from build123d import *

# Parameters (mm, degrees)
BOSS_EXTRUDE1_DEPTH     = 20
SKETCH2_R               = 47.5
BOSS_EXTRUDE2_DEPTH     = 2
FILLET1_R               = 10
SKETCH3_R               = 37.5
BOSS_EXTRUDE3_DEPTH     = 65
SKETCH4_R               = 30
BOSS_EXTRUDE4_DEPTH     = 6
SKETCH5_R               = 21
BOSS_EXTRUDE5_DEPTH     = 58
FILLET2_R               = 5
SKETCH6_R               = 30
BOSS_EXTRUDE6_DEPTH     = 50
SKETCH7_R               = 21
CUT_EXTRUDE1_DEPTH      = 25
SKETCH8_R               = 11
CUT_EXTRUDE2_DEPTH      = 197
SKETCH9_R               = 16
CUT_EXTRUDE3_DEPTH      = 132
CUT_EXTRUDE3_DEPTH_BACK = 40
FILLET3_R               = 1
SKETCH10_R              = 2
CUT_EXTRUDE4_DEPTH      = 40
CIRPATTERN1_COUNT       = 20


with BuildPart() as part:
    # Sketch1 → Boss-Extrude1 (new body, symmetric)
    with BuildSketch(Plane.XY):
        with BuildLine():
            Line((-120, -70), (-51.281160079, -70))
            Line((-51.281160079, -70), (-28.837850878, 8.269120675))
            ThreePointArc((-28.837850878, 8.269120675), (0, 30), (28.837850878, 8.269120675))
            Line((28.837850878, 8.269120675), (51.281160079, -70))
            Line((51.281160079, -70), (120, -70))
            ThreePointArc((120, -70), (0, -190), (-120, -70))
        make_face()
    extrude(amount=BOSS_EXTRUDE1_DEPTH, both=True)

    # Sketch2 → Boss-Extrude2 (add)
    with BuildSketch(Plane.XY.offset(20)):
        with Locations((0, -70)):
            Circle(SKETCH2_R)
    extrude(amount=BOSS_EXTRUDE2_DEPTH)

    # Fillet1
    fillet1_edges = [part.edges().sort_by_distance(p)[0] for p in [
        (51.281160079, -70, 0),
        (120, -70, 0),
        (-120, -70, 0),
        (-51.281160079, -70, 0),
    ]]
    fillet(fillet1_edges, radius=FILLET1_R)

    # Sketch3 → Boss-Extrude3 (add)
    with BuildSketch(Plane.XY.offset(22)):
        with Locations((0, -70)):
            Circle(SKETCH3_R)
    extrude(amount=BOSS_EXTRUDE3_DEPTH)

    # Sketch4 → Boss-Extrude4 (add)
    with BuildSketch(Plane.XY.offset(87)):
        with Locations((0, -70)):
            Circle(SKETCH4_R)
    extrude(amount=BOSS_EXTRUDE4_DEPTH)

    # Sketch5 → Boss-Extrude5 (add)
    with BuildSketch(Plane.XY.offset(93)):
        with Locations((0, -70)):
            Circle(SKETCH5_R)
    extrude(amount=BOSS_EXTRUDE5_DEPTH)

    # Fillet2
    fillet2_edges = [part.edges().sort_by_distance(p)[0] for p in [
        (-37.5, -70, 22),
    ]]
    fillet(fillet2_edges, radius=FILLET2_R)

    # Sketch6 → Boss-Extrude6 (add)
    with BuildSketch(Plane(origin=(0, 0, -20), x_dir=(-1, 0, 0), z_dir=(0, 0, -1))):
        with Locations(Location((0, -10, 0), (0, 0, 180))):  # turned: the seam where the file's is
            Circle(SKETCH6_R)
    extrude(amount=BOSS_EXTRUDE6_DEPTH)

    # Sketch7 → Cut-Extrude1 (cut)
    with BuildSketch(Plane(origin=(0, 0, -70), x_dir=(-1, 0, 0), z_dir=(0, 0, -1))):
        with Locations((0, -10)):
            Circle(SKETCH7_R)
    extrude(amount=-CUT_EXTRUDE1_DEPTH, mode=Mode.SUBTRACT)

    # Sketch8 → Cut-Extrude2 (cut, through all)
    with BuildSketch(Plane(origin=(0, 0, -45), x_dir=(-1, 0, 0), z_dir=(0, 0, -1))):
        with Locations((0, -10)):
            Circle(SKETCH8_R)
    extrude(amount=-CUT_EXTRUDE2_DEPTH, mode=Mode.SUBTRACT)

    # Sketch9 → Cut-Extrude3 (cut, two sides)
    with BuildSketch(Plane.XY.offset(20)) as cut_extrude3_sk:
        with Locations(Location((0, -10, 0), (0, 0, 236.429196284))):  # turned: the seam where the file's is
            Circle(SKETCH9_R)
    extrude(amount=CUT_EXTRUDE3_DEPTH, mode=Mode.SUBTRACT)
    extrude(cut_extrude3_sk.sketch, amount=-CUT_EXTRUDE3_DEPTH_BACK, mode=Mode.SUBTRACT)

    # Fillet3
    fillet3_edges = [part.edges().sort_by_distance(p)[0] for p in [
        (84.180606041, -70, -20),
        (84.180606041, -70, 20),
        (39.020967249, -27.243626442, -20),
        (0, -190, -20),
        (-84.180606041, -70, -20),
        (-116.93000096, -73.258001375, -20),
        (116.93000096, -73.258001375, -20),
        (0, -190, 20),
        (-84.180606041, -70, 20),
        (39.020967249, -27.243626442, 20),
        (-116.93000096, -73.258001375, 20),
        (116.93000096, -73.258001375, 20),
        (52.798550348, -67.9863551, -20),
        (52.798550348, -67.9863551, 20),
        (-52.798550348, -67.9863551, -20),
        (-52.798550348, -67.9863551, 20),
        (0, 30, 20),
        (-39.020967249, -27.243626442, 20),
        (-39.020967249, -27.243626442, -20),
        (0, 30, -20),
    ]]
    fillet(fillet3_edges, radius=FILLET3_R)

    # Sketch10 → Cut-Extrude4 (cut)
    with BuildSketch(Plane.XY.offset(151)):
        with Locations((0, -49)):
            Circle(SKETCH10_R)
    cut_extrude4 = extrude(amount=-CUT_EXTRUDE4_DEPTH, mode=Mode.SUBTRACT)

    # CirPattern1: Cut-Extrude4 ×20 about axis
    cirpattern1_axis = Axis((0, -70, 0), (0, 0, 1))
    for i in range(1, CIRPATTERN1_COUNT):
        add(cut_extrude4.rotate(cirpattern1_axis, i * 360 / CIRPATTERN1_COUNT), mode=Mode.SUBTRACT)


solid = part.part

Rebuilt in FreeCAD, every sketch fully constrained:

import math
import FreeCAD as App
import Part
import Sketcher
from FreeCAD import Vector
Q = App.Units.Quantity


def edges_at(feature, points):
    """Names of the edges that pass closest to the given points."""
    edges = feature.Shape.Edges
    near = lambda p: min(range(len(edges)), key=lambda i: edges[i].distToShape(Part.Vertex(*p))[0])
    return sorted({f"Edge{near(p) + 1}" for p in points})

doc = App.newDocument("Part")
params = doc.addObject("Spreadsheet::Sheet", "Params")
for row, (alias, value) in enumerate([
    ("sketch1_radius", "120 mm"),
    ("sketch1_radius2", "30 mm"),
    ("pad1_length", "40 mm"),
    ("sketch2_diameter", "95 mm"),
    ("pad2_length", "2 mm"),
    ("fillet_radius", "10 mm"),
    ("sketch3_diameter", "75 mm"),
    ("pad3_length", "65 mm"),
    ("sketch4_diameter", "60 mm"),
    ("pad4_length", "6 mm"),
    ("sketch5_diameter", "42 mm"),
    ("pad5_length", "58 mm"),
    ("fillet2_radius", "5 mm"),
    ("sketch6_diameter", "60 mm"),
    ("pad6_length", "50 mm"),
    ("sketch7_diameter", "42 mm"),
    ("pocket1_length", "25 mm"),
    ("sketch8_diameter", "22 mm"),
    ("sketch9_diameter", "32 mm"),
    ("pocket3_length", "132 mm"),
    ("pocket3_length2", "40 mm"),
    ("fillet3_radius", "1 mm"),
    ("sketch10_diameter", "4 mm"),
    ("pocket4_length", "40 mm"),
], start=1):
    params.set(f"A{row}", alias)
    params.set(f"B{row}", "=" + value)
    params.setAlias(f"B{row}", alias)

body = doc.addObject("PartDesign::Body", "Body")

# Sketch on XY plane
sketch1 = doc.addObject("Sketcher::SketchObject", "Sketch")
body.addObject(sketch1)
sketch1.AttachmentSupport = (doc.XY_Plane, [""])
sketch1.MapMode = "FlatFace"
sketch1.addGeometry([
    Part.LineSegment(Vector(-51, -70, 0), Vector(-120, -70, 0)),  # 0
    Part.ArcOfCircle(Part.Circle(Vector(0, -70, 0), Vector(0, 0, 1), 120), math.radians(180), math.radians(360)),  # 1
    Part.LineSegment(Vector(120, -70, 0), Vector(51, -70, 0)),  # 2
    Part.LineSegment(Vector(51, -70, 0), Vector(29, 8, 0)),  # 3
    Part.ArcOfCircle(Part.Circle(Vector(0, 0, 0), Vector(0, 0, 1), 30), math.radians(16), math.radians(164)),  # 4
    Part.LineSegment(Vector(-29, 8, 0), Vector(-51, -70, 0)),  # 5
], False)
sketch1.addConstraint([
    Sketcher.Constraint("Coincident", 0, 2, 1, 1),
    Sketcher.Constraint("Coincident", 1, 2, 2, 1),
    Sketcher.Constraint("Coincident", 2, 2, 3, 1),
    Sketcher.Constraint("Tangent", 3, 2, 4, 1),
    Sketcher.Constraint("Tangent", 4, 2, 5, 1),
    Sketcher.Constraint("Coincident", 5, 2, 0, 1),
    Sketcher.Constraint("Horizontal", 0),
    Sketcher.Constraint("Horizontal", 2),
    Sketcher.Constraint("Coincident", 4, 3, -1, 1),
    Sketcher.Constraint("Symmetric", 0, 2, 1, 2, -2),
    Sketcher.Constraint("Horizontal", 1, 3, 0, 2),
    Sketcher.Constraint("Horizontal", 3, 2, 4, 2),
    Sketcher.Constraint("Radius", 1, 120.0),
    Sketcher.Constraint("Radius", 4, 30.0),
    Sketcher.Constraint("Angle", 3, Q("106 deg")),
    Sketcher.Constraint("DistanceY", 1, 3, -1, 1, 70.0),
])
sketch1.setExpression("Constraints[12]", "Params.sketch1_radius")
sketch1.setExpression("Constraints[13]", "Params.sketch1_radius2")
pad1 = doc.addObject("PartDesign::Pad", "Pad")
body.addObject(pad1)
pad1.Profile = sketch1
pad1.setExpression("Length", "Params.pad1_length")
pad1.Midplane = True

# Sketch on XY plane
sketch2 = doc.addObject("Sketcher::SketchObject", "Sketch001")
body.addObject(sketch2)
sketch2.AttachmentSupport = (doc.XY_Plane, [""])
sketch2.MapMode = "FlatFace"
sketch2.AttachmentOffset = App.Placement(Vector(0, 0, 20), App.Rotation())
sketch2.addGeometry(Part.Circle(Vector(0, -70, 0), Vector(0, 0, 1), 48), False)
sketch2.addConstraint([
    Sketcher.Constraint("PointOnObject", 0, 3, -2),
    Sketcher.Constraint("Diameter", 0, 95.0),
    Sketcher.Constraint("DistanceY", 0, 3, -1, 1, 70.0),
])
sketch2.setExpression("Constraints[1]", "Params.sketch2_diameter")
pad2 = doc.addObject("PartDesign::Pad", "Pad001")
body.addObject(pad2)
pad2.Profile = sketch2
pad2.setExpression("Length", "Params.pad2_length")
doc.recompute()

fillet = doc.addObject("PartDesign::Fillet", "Fillet")
body.addObject(fillet)
fillet.Base = (pad2, edges_at(pad2, [
    (51.281, -70, 0),
    (120, -70, 0),
    (-120, -70, 0),
    (-51.281, -70, 0),
]))
fillet.setExpression("Radius", "Params.fillet_radius")

# Sketch on XY plane
sketch3 = doc.addObject("Sketcher::SketchObject", "Sketch002")
body.addObject(sketch3)
sketch3.AttachmentSupport = (doc.XY_Plane, [""])
sketch3.MapMode = "FlatFace"
sketch3.AttachmentOffset = App.Placement(Vector(0, 0, 22), App.Rotation())
sketch3.addGeometry(Part.Circle(Vector(0, -70, 0), Vector(0, 0, 1), 38), False)
sketch3.addConstraint([
    Sketcher.Constraint("PointOnObject", 0, 3, -2),
    Sketcher.Constraint("Diameter", 0, 75.0),
    Sketcher.Constraint("DistanceY", 0, 3, -1, 1, 70.0),
])
sketch3.setExpression("Constraints[1]", "Params.sketch3_diameter")
pad3 = doc.addObject("PartDesign::Pad", "Pad002")
body.addObject(pad3)
pad3.Profile = sketch3
pad3.setExpression("Length", "Params.pad3_length")

# Sketch on XY plane
sketch4 = doc.addObject("Sketcher::SketchObject", "Sketch003")
body.addObject(sketch4)
sketch4.AttachmentSupport = (doc.XY_Plane, [""])
sketch4.MapMode = "FlatFace"
sketch4.AttachmentOffset = App.Placement(Vector(0, 0, 87), App.Rotation())
sketch4.addGeometry(Part.Circle(Vector(0, -70, 0), Vector(0, 0, 1), 30), False)
sketch4.addConstraint([
    Sketcher.Constraint("PointOnObject", 0, 3, -2),
    Sketcher.Constraint("Diameter", 0, 60.0),
    Sketcher.Constraint("DistanceY", 0, 3, -1, 1, 70.0),
])
sketch4.setExpression("Constraints[1]", "Params.sketch4_diameter")
pad4 = doc.addObject("PartDesign::Pad", "Pad003")
body.addObject(pad4)
pad4.Profile = sketch4
pad4.setExpression("Length", "Params.pad4_length")

# Sketch on XY plane
sketch5 = doc.addObject("Sketcher::SketchObject", "Sketch004")
body.addObject(sketch5)
sketch5.AttachmentSupport = (doc.XY_Plane, [""])
sketch5.MapMode = "FlatFace"
sketch5.AttachmentOffset = App.Placement(Vector(0, 0, 93), App.Rotation())
sketch5.addGeometry(Part.Circle(Vector(0, -70, 0), Vector(0, 0, 1), 21), False)
sketch5.addConstraint([
    Sketcher.Constraint("PointOnObject", 0, 3, -2),
    Sketcher.Constraint("Diameter", 0, 42.0),
    Sketcher.Constraint("DistanceY", 0, 3, -1, 1, 70.0),
])
sketch5.setExpression("Constraints[1]", "Params.sketch5_diameter")
pad5 = doc.addObject("PartDesign::Pad", "Pad004")
body.addObject(pad5)
pad5.Profile = sketch5
pad5.setExpression("Length", "Params.pad5_length")
doc.recompute()

fillet2 = doc.addObject("PartDesign::Fillet", "Fillet001")
body.addObject(fillet2)
fillet2.Base = (pad5, edges_at(pad5, [(-37.5, -70, 22)]))
fillet2.setExpression("Radius", "Params.fillet2_radius")

# Sketch on XY plane
sketch6 = doc.addObject("Sketcher::SketchObject", "Sketch005")
body.addObject(sketch6)
sketch6.AttachmentSupport = (doc.XY_Plane, [""])
sketch6.MapMode = "FlatFace"
sketch6.AttachmentOffset = App.Placement(Vector(0, 0, -20), App.Rotation())
sketch6.addGeometry(Part.Circle(Vector(0, -10, 0), Vector(0, 0, 1), 30), False)
sketch6.addConstraint([
    Sketcher.Constraint("PointOnObject", 0, 3, -2),
    Sketcher.Constraint("Diameter", 0, 60.0),
    Sketcher.Constraint("DistanceY", 0, 3, -1, 1, 10.0),
])
sketch6.setExpression("Constraints[1]", "Params.sketch6_diameter")
pad6 = doc.addObject("PartDesign::Pad", "Pad005")
body.addObject(pad6)
pad6.Profile = sketch6
pad6.setExpression("Length", "Params.pad6_length")
pad6.Reversed = True

# Sketch on XY plane
sketch7 = doc.addObject("Sketcher::SketchObject", "Sketch006")
body.addObject(sketch7)
sketch7.AttachmentSupport = (doc.XY_Plane, [""])
sketch7.MapMode = "FlatFace"
sketch7.AttachmentOffset = App.Placement(Vector(0, 0, -70), App.Rotation())
sketch7.addGeometry(Part.Circle(Vector(0, -10, 0), Vector(0, 0, 1), 21), False)
sketch7.addConstraint([
    Sketcher.Constraint("PointOnObject", 0, 3, -2),
    Sketcher.Constraint("Diameter", 0, 42.0),
    Sketcher.Constraint("DistanceY", 0, 3, -1, 1, 10.0),
])
sketch7.setExpression("Constraints[1]", "Params.sketch7_diameter")
pocket1 = doc.addObject("PartDesign::Pocket", "Pocket")
body.addObject(pocket1)
pocket1.Profile = sketch7
pocket1.setExpression("Length", "Params.pocket1_length")
pocket1.Reversed = True

# Sketch on XY plane
sketch8 = doc.addObject("Sketcher::SketchObject", "Sketch007")
body.addObject(sketch8)
sketch8.AttachmentSupport = (doc.XY_Plane, [""])
sketch8.MapMode = "FlatFace"
sketch8.AttachmentOffset = App.Placement(Vector(0, 0, -45), App.Rotation())
sketch8.addGeometry(Part.Circle(Vector(0, -10, 0), Vector(0, 0, 1), 11), False)
sketch8.addConstraint([
    Sketcher.Constraint("PointOnObject", 0, 3, -2),
    Sketcher.Constraint("Diameter", 0, 22.0),
    Sketcher.Constraint("DistanceY", 0, 3, -1, 1, 10.0),
])
sketch8.setExpression("Constraints[1]", "Params.sketch8_diameter")
pocket2 = doc.addObject("PartDesign::Pocket", "Pocket001")
body.addObject(pocket2)
pocket2.Profile = sketch8
pocket2.Type = "ThroughAll"
pocket2.Reversed = True

# Sketch on XY plane
sketch9 = doc.addObject("Sketcher::SketchObject", "Sketch008")
body.addObject(sketch9)
sketch9.AttachmentSupport = (doc.XY_Plane, [""])
sketch9.MapMode = "FlatFace"
sketch9.AttachmentOffset = App.Placement(Vector(0, 0, 20), App.Rotation())
sketch9.addGeometry(Part.Circle(Vector(0, -10, 0), Vector(0, 0, 1), 16), False)
sketch9.addConstraint([
    Sketcher.Constraint("PointOnObject", 0, 3, -2),
    Sketcher.Constraint("Diameter", 0, 32.0),
    Sketcher.Constraint("DistanceY", 0, 3, -1, 1, 10.0),
])
sketch9.setExpression("Constraints[1]", "Params.sketch9_diameter")
pocket3 = doc.addObject("PartDesign::Pocket", "Pocket002")
body.addObject(pocket3)
pocket3.Profile = sketch9
pocket3.Type = "TwoLengths"
pocket3.setExpression("Length", "Params.pocket3_length")
pocket3.setExpression("Length2", "Params.pocket3_length2")
pocket3.Reversed = True
doc.recompute()

fillet3 = doc.addObject("PartDesign::Fillet", "Fillet002")
body.addObject(fillet3)
fillet3.Base = (pocket3, edges_at(pocket3, [
    (84.181, -70, -20),
    (84.181, -70, 20),
    (39.021, -27.244, -20),
    (0, -190, -20),
    (-84.181, -70, -20),
    (-116.93, -73.258, -20),
    (116.93, -73.258, -20),
    (0, -190, 20),
    (-84.181, -70, 20),
    (39.021, -27.244, 20),
    (-116.93, -73.258, 20),
    (116.93, -73.258, 20),
    (52.799, -67.986, -20),
    (52.799, -67.986, 20),
    (-52.799, -67.986, -20),
    (-52.799, -67.986, 20),
    (0, 30, 20),
    (-39.021, -27.244, 20),
    (-39.021, -27.244, -20),
    (0, 30, -20),
]))
fillet3.setExpression("Radius", "Params.fillet3_radius")

# Sketch on XY plane
sketch10 = doc.addObject("Sketcher::SketchObject", "Sketch009")
body.addObject(sketch10)
sketch10.AttachmentSupport = (doc.XY_Plane, [""])
sketch10.MapMode = "FlatFace"
sketch10.AttachmentOffset = App.Placement(Vector(0, 0, 151), App.Rotation())
sketch10.addGeometry(Part.Circle(Vector(0, -49, 0), Vector(0, 0, 1), 2), False)
sketch10.addConstraint([
    Sketcher.Constraint("PointOnObject", 0, 3, -2),
    Sketcher.Constraint("Diameter", 0, 4.0),
    Sketcher.Constraint("DistanceY", 0, 3, -1, 1, 49.0),
])
sketch10.setExpression("Constraints[1]", "Params.sketch10_diameter")
pocket4 = doc.addObject("PartDesign::Pocket", "Pocket003")
body.addObject(pocket4)
pocket4.Profile = sketch10
pocket4.setExpression("Length", "Params.pocket4_length")
doc.recompute()

datumline = doc.addObject("PartDesign::Line", "DatumLine")
body.addObject(datumline)
datumline.Placement = App.Placement(Vector(0, -70, 0), App.Rotation(Vector(0, 0, 1), Vector(0, 0, 1)))
polarpattern = doc.addObject("PartDesign::PolarPattern", "PolarPattern")
body.addObject(polarpattern)
polarpattern.Originals = [pocket4]
polarpattern.Axis = (datumline, [""])
polarpattern.Angle = 360
polarpattern.Occurrences = 20
body.Tip = polarpattern

doc.recompute()
